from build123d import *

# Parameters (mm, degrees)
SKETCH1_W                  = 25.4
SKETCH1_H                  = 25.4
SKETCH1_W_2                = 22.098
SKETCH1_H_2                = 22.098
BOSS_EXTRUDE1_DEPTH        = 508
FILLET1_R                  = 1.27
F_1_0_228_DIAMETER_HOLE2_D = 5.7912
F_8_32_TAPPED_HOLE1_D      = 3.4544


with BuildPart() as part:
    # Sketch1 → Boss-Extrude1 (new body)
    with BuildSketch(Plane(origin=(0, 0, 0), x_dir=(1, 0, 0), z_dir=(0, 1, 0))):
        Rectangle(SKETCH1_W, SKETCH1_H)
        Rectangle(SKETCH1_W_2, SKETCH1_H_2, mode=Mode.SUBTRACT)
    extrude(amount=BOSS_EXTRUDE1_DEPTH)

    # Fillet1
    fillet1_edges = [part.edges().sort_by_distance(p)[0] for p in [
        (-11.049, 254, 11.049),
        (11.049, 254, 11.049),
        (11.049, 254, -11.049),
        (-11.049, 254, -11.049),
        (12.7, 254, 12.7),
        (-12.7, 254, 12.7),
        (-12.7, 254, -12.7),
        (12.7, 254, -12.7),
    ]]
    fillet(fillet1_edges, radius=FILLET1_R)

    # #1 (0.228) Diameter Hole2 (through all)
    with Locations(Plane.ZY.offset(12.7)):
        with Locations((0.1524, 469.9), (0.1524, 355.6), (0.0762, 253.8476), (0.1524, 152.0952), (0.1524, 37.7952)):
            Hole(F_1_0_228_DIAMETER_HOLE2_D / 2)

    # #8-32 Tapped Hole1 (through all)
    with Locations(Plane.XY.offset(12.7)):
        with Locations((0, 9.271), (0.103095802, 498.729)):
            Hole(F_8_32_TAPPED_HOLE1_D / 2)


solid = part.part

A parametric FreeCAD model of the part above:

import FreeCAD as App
import Part
import Sketcher
from FreeCAD import Vector
Q = App.Units.Quantity


def edges_at(feature, points):
    """Names of the edges that pass closest to the given points."""
    edges = feature.Shape.Edges
    near = lambda p: min(range(len(edges)), key=lambda i: edges[i].distToShape(Part.Vertex(*p))[0])
    return sorted({f"Edge{near(p) + 1}" for p in points})


def add_polygon(sketch, points):
    """Adds a closed chain of lines whose ends are joined by coincident constraints."""
    first, n = sketch.GeometryCount, len(points)
    for a, b in zip(points, points[1:] + points[:1]):
        sketch.addGeometry(Part.LineSegment(App.Vector(*a, 0), App.Vector(*b, 0)), False)
    for i in range(n):
        sketch.addConstraint(Sketcher.Constraint("Coincident", first + i, 2, first + (i + 1) % n, 1))

doc = App.newDocument("Part")
body = doc.addObject("PartDesign::Body", "Body")

sketch1 = body.newObject("Sketcher::SketchObject", "Sketch")
sketch1.AttachmentSupport = (doc.getObject("XZ_Plane"), [""])
sketch1.MapMode = "FlatFace"
add_polygon(sketch1, [(-13, -13), (-13, 13), (13, 13), (13, -13)])
add_polygon(sketch1, [(11, 11), (-11, 11), (-11, -11), (11, -11)])
sketch1.addConstraint(Sketcher.Constraint("Vertical", 0))
sketch1.addConstraint(Sketcher.Constraint("Horizontal", 1))
sketch1.addConstraint(Sketcher.Constraint("Vertical", 2))
sketch1.addConstraint(Sketcher.Constraint("Horizontal", 3))
sketch1.addConstraint(Sketcher.Constraint("Horizontal", 4))
sketch1.addConstraint(Sketcher.Constraint("Vertical", 5))
sketch1.addConstraint(Sketcher.Constraint("Horizontal", 6))
sketch1.addConstraint(Sketcher.Constraint("Vertical", 7))
sketch1.addConstraint(Sketcher.Constraint("Symmetric", 0, 2, 2, 2, -1, 1))
sketch1.addConstraint(Sketcher.Constraint("Symmetric", 4, 2, 6, 2, -1, 1))
sketch1.addConstraint(Sketcher.Constraint("Equal", 3, 0))
sketch1.addConstraint(Sketcher.Constraint("Equal", 6, 5))
sketch1.addConstraint(Sketcher.Constraint("DistanceX", 1, 1, 1, 2, Q("1 in")))
sketch1.addConstraint(Sketcher.Constraint("DistanceX", 4, 2, 4, 1, Q("0.87 in")))
pad1 = body.newObject("PartDesign::Pad", "Pad")
pad1.Profile = sketch1
pad1.Length = Q("20 in")
pad1.Reversed = True
doc.recompute()

fillet = body.newObject("PartDesign::Fillet", "Fillet")
fillet.Base = (pad1, edges_at(pad1, [
    (-11.049, 254, 11.049),
    (11.049, 254, 11.049),
    (11.049, 254, -11.049),
    (-11.049, 254, -11.049),
    (12.7, 254, 12.7),
    (-12.7, 254, 12.7),
    (-12.7, 254, -12.7),
    (12.7, 254, -12.7),
]))
fillet.Radius = Q("0.05 in")

sketch2 = body.newObject("Sketcher::SketchObject", "Sketch001")
sketch2.AttachmentSupport = (doc.getObject("YZ_Plane"), [""])
sketch2.MapMode = "FlatFace"
sketch2.AttachmentOffset = App.Placement(Vector(0, 0, -0.5 * 25.4), App.Rotation())
sketch2.addGeometry(Part.Circle(Vector(469.9, 0.2, 0), Vector(0, 0, 1), 2.9), False)
sketch2.addGeometry(Part.Circle(Vector(355.6, 0.2, 0), Vector(0, 0, 1), 2.9), False)
sketch2.addGeometry(Part.Circle(Vector(253.8, 0.1, 0), Vector(0, 0, 1), 2.9), False)
sketch2.addGeometry(Part.Circle(Vector(152.1, 0.2, 0), Vector(0, 0, 1), 2.9), False)
sketch2.addGeometry(Part.Circle(Vector(37.8, 0.2, 0), Vector(0, 0, 1), 2.9), False)
sketch2.addConstraint(Sketcher.Constraint("Equal", 0, 1))
sketch2.addConstraint(Sketcher.Constraint("Equal", 1, 2))
sketch2.addConstraint(Sketcher.Constraint("Equal", 2, 3))
sketch2.addConstraint(Sketcher.Constraint("Equal", 3, 4))
sketch2.addConstraint(Sketcher.Constraint("Horizontal", 0, 3, 1, 3))
sketch2.addConstraint(Sketcher.Constraint("Horizontal", 1, 3, 3, 3))
sketch2.addConstraint(Sketcher.Constraint("Horizontal", 3, 3, 4, 3))
sketch2.addConstraint(Sketcher.Constraint("Diameter", 0, Q("0.228 in")))
sketch2.addConstraint(Sketcher.Constraint("DistanceX", -1, 1, 1, 3, Q("14 in")))
sketch2.addConstraint(Sketcher.Constraint("DistanceX", -1, 1, 0, 3, Q("18.5 in")))
sketch2.addConstraint(Sketcher.Constraint("DistanceX", 4, 3, 3, 3, Q("4.5 in")))
sketch2.addConstraint(Sketcher.Constraint("DistanceY", -1, 1, 0, 3, Q("0.006 in")))
sketch2.addConstraint(Sketcher.Constraint("DistanceX", -1, 1, 2, 3, Q("9.994 in")))
sketch2.addConstraint(Sketcher.Constraint("DistanceY", -1, 1, 2, 3, Q("0.003 in")))
sketch2.addConstraint(Sketcher.Constraint("DistanceX", -1, 1, 3, 3, Q("5.988 in")))
doc.recompute()
hole = body.newObject("PartDesign::Hole", "Hole")
hole.Profile = sketch2
hole.ThreadType = "None"
hole.Diameter = Q("0.228 in")
hole.DepthType = "ThroughAll"
hole.Reversed = True

sketch3 = body.newObject("Sketcher::SketchObject", "Sketch002")
sketch3.AttachmentSupport = (doc.getObject("XY_Plane"), [""])
sketch3.MapMode = "FlatFace"
sketch3.AttachmentOffset = App.Placement(Vector(0, 0, 0.5 * 25.4), App.Rotation())
sketch3.addGeometry(Part.Circle(Vector(0, 9.3, 0), Vector(0, 0, 1), 1.7), False)
sketch3.addGeometry(Part.Circle(Vector(0.1, 498.7, 0), Vector(0, 0, 1), 1.7), False)
sketch3.addConstraint(Sketcher.Constraint("Equal", 0, 1))
sketch3.addConstraint(Sketcher.Constraint("PointOnObject", 0, 3, -2))
sketch3.addConstraint(Sketcher.Constraint("Diameter", 0, Q("0.136 in")))
sketch3.addConstraint(Sketcher.Constraint("DistanceY", 0, 3, 1, 3, Q("19.27 in")))
sketch3.addConstraint(Sketcher.Constraint("DistanceY", -1, 1, 0, 3, Q("0.365 in")))
sketch3.addConstraint(Sketcher.Constraint("DistanceX", -1, 1, 1, 3, 0.103096))
doc.recompute()
hole2 = body.newObject("PartDesign::Hole", "Hole001")
hole2.Profile = sketch3
hole2.ThreadType = "None"
hole2.Diameter = Q("0.136 in")
hole2.DepthType = "ThroughAll"

doc.recompute()
